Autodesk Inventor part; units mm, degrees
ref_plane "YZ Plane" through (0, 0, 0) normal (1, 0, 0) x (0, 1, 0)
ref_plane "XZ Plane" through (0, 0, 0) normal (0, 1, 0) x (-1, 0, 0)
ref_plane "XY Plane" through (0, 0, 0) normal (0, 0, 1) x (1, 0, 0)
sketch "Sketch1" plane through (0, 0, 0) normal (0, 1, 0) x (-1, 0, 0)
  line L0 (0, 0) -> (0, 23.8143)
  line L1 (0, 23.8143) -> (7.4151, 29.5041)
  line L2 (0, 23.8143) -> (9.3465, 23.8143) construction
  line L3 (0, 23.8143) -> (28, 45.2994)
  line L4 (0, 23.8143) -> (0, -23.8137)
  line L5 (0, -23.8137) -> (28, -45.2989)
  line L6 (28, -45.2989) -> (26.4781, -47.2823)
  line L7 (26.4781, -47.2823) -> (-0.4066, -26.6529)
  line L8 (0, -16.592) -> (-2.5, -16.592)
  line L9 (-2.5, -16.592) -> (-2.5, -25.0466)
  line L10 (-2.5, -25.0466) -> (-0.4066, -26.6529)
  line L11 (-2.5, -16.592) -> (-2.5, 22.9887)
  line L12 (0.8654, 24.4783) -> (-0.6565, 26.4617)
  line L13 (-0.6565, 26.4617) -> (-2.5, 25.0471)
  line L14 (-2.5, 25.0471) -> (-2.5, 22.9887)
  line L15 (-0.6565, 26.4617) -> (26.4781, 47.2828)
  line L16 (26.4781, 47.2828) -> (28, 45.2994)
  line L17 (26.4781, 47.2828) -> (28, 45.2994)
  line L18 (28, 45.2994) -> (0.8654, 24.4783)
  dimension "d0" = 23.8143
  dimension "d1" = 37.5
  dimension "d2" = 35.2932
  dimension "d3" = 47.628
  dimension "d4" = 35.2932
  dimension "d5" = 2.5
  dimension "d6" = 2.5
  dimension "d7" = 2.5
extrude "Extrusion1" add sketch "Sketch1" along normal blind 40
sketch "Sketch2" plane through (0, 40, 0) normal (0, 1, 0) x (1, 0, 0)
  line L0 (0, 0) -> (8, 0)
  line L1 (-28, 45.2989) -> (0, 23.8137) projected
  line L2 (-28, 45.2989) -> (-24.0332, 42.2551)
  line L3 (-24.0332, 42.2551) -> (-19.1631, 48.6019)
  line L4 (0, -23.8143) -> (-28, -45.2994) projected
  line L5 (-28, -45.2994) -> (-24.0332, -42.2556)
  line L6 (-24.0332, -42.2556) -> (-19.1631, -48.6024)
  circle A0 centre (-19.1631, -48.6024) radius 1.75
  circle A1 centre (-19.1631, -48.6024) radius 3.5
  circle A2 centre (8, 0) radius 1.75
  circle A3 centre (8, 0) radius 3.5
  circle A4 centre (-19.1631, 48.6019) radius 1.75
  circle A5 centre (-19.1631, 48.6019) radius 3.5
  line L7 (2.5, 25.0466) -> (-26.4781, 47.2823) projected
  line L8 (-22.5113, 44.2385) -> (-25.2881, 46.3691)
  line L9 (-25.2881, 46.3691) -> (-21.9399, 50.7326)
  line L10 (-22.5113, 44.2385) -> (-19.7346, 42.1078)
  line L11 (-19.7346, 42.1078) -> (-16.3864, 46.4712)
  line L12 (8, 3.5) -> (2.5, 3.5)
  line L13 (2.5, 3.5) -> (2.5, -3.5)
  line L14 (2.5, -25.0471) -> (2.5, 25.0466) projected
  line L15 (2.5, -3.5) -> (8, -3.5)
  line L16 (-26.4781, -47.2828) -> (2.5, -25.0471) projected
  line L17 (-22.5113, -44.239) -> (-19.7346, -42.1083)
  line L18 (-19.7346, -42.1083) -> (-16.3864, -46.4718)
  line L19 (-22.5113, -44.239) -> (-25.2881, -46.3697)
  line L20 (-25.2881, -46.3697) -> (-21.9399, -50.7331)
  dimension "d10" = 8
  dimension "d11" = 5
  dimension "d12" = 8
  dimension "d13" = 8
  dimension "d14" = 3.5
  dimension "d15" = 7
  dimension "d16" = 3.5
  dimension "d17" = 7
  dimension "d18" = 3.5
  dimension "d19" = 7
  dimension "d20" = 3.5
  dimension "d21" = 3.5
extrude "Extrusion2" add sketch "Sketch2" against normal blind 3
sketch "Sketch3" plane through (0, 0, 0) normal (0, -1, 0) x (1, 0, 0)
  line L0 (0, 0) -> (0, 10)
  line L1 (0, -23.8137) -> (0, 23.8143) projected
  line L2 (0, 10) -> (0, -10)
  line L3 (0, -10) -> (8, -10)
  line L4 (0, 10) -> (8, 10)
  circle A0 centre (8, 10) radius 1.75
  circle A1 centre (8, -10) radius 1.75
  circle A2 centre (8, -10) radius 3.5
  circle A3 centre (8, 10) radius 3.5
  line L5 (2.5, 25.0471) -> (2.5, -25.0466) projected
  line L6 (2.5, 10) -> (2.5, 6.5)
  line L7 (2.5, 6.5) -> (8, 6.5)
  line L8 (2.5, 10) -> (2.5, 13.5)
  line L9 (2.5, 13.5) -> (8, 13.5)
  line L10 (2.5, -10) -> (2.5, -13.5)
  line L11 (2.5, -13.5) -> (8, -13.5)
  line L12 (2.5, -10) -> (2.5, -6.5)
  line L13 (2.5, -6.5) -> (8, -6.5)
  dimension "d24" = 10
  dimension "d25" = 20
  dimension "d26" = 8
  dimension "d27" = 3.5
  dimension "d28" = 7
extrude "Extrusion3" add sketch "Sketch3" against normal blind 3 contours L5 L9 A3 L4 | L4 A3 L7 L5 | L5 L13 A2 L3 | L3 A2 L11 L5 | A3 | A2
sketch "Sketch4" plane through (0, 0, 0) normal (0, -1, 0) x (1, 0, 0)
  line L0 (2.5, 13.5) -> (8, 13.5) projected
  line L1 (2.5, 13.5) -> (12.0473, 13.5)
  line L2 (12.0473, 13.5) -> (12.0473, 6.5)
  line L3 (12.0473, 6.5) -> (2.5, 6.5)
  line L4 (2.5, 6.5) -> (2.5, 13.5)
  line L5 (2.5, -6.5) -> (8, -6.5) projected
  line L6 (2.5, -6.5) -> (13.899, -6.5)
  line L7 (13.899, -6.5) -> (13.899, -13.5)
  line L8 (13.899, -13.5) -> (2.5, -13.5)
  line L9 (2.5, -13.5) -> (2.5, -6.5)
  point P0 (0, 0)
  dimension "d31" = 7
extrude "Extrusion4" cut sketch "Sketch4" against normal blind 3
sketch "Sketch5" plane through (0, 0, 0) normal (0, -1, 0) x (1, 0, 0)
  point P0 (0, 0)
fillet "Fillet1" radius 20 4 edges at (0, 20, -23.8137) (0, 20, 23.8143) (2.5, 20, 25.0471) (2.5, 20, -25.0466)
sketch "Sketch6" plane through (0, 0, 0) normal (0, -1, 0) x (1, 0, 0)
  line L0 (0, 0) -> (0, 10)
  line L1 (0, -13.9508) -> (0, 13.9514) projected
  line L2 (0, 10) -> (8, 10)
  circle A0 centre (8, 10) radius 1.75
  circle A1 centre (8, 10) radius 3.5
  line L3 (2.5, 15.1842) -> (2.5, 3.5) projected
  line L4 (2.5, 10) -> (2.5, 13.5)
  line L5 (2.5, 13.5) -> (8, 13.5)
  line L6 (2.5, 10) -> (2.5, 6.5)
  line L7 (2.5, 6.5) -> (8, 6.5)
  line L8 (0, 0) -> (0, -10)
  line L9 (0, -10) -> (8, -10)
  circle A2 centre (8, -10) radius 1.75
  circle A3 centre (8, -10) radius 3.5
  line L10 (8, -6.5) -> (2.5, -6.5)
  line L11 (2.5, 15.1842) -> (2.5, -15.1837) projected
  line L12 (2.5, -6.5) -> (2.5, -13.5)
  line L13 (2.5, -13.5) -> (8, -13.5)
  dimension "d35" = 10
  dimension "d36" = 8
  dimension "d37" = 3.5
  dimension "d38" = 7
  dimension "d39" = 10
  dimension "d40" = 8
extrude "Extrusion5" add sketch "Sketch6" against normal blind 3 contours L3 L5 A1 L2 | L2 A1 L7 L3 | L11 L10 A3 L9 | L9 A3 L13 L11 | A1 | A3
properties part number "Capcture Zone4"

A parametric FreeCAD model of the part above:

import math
import FreeCAD as App
import Part
import Sketcher
from FreeCAD import Vector
Q = App.Units.Quantity


def edges_at(feature, points):
    """Names of the edges that pass closest to the given points."""
    edges = feature.Shape.Edges
    near = lambda p: min(range(len(edges)), key=lambda i: edges[i].distToShape(Part.Vertex(*p))[0])
    return sorted({f"Edge{near(p) + 1}" for p in points})

doc = App.newDocument("Part")
body = doc.addObject("PartDesign::Body", "Body")

# Sketch on XZ plane
sketch1 = body.newObject("Sketcher::SketchObject", "Sketch")
sketch1.AttachmentSupport = (doc.getObject("XZ_Plane"), [""])
sketch1.MapMode = "FlatFace"
sketch1.addGeometry(Part.LineSegment(Vector(0, 23.8, 0), Vector(-7.4, 29.5, 0)), False)
sketch1.addGeometry(Part.LineSegment(Vector(-7.4, 29.5, 0), Vector(-28, 45.3, 0)), False)
sketch1.addGeometry(Part.LineSegment(Vector(-28, 45.3, 0), Vector(-26.5, 47.3, 0)), False)
sketch1.addGeometry(Part.LineSegment(Vector(-26.5, 47.3, 0), Vector(0.7, 26.5, 0)), False)
sketch1.addGeometry(Part.LineSegment(Vector(0.7, 26.5, 0), Vector(2.5, 25, 0)), False)
sketch1.addGeometry(Part.LineSegment(Vector(2.5, 25, 0), Vector(2.5, -25, 0)), False)
sketch1.addGeometry(Part.LineSegment(Vector(2.5, -25, 0), Vector(0.4, -26.7, 0)), False)
sketch1.addGeometry(Part.LineSegment(Vector(0.4, -26.7, 0), Vector(-26.5, -47.3, 0)), False)
sketch1.addGeometry(Part.LineSegment(Vector(-26.5, -47.3, 0), Vector(-28, -45.3, 0)), False)
sketch1.addGeometry(Part.LineSegment(Vector(-28, -45.3, 0), Vector(0, -23.8, 0)), False)
sketch1.addGeometry(Part.LineSegment(Vector(0, -23.8, 0), Vector(0, 23.8, 0)), False)
sketch1.addConstraint(Sketcher.Constraint("Coincident", 0, 2, 1, 1))
sketch1.addConstraint(Sketcher.Constraint("Coincident", 1, 2, 2, 1))
sketch1.addConstraint(Sketcher.Constraint("Coincident", 2, 2, 3, 1))
sketch1.addConstraint(Sketcher.Constraint("Coincident", 3, 2, 4, 1))
sketch1.addConstraint(Sketcher.Constraint("Coincident", 4, 2, 5, 1))
sketch1.addConstraint(Sketcher.Constraint("Coincident", 5, 2, 6, 1))
sketch1.addConstraint(Sketcher.Constraint("Coincident", 6, 2, 7, 1))
sketch1.addConstraint(Sketcher.Constraint("Coincident", 7, 2, 8, 1))
sketch1.addConstraint(Sketcher.Constraint("Coincident", 8, 2, 9, 1))
sketch1.addConstraint(Sketcher.Constraint("Coincident", 9, 2, 10, 1))
sketch1.addConstraint(Sketcher.Constraint("Coincident", 10, 2, 0, 1))
sketch1.addConstraint(Sketcher.Constraint("Vertical", 5))
sketch1.addConstraint(Sketcher.Constraint("Vertical", 10))
sketch1.addConstraint(Sketcher.Constraint("PointOnObject", 9, 2, -2))
sketch1.addConstraint(Sketcher.Constraint("Parallel", 0, 1))
sketch1.addConstraint(Sketcher.Constraint("Perpendicular", 1, 2))
sketch1.addConstraint(Sketcher.Constraint("Perpendicular", 2, 3))
sketch1.addConstraint(Sketcher.Constraint("Parallel", 3, 4))
sketch1.addConstraint(Sketcher.Constraint("Parallel", 6, 7))
sketch1.addConstraint(Sketcher.Constraint("Perpendicular", 7, 8))
sketch1.addConstraint(Sketcher.Constraint("Perpendicular", 8, 9))
sketch1.addConstraint(Sketcher.Constraint("Vertical", 2, 2, 7, 2))
sketch1.addConstraint(Sketcher.Constraint("Vertical", 1, 2, 8, 2))
sketch1.addConstraint(Sketcher.Constraint("Equal", 2, 8))
sketch1.addConstraint(Sketcher.Constraint("Angle", 3, Q("-37.5 deg")))
sketch1.addConstraint(Sketcher.Constraint("Distance", 2, Q("2.5 mm")))
sketch1.addConstraint(Sketcher.Constraint("DistanceX", -1, 1, 4, 2, Q("2.5 mm")))
sketch1.addConstraint(Sketcher.Constraint("DistanceY", 10, 1, 10, 2, Q("47.628 mm")))
sketch1.addConstraint(Sketcher.Constraint("DistanceX", 1, 2, -1, 1, Q("28 mm")))
sketch1.addConstraint(Sketcher.Constraint("DistanceY", 9, 2, -1, 1, Q("23.8137 mm")))
sketch1.addConstraint(Sketcher.Constraint("DistanceY", 6, 2, 4, 2, Q("51.7 mm")))
sketch1.addConstraint(Sketcher.Constraint("DistanceX", 6, 2, 3, 2, Q("0.25 mm")))
sketch1.addConstraint(Sketcher.Constraint("DistanceX", 0, 2, -1, 1, Q("7.415 mm")))
pad1 = body.newObject("PartDesign::Pad", "Pad")
pad1.Profile = sketch1
pad1.Length = 40
pad1.Reversed = True

# Sketch on XZ plane
sketch2 = body.newObject("Sketcher::SketchObject", "Sketch001")
sketch2.AttachmentSupport = (doc.getObject("XZ_Plane"), [""])
sketch2.MapMode = "FlatFace"
sketch2.AttachmentOffset = App.Placement(Vector(0, 0, -40), App.Rotation())
sketch2.addGeometry(Part.LineSegment(Vector(2.5, -3.5, 0), Vector(2.5, 3.5, 0)), False)
sketch2.addGeometry(Part.LineSegment(Vector(2.5, 3.5, 0), Vector(8, 3.5, 0)), False)
sketch2.addGeometry(Part.ArcOfCircle(Part.Circle(Vector(8, 0, 0), Vector(0, 0, 1), 3.5), math.radians(-90), math.radians(90)), False)
sketch2.addGeometry(Part.LineSegment(Vector(8, -3.5, 0), Vector(2.5, -3.5, 0)), False)
sketch2.addGeometry(Part.Circle(Vector(8, 0, 0), Vector(0, 0, 1), 1.8), False)
sketch2.addGeometry(Part.LineSegment(Vector(-19.7, -42.1, 0), Vector(-16.4, -46.5, 0)), False)
sketch2.addGeometry(Part.ArcOfCircle(Part.Circle(Vector(-19.2, -48.6, 0), Vector(0, 0, 1), 3.5), math.radians(-143), math.radians(38)), False)
sketch2.addGeometry(Part.LineSegment(Vector(-21.9, -50.7, 0), Vector(-25.3, -46.4, 0)), False)
sketch2.addGeometry(Part.LineSegment(Vector(-25.3, -46.4, 0), Vector(-19.7, -42.1, 0)), False)
sketch2.addGeometry(Part.Circle(Vector(-19.2, -48.6, 0), Vector(0, 0, 1), 1.8), False)
sketch2.addGeometry(Part.LineSegment(Vector(-16.4, 46.5, 0), Vector(-19.7, 42.1, 0)), False)
sketch2.addGeometry(Part.LineSegment(Vector(-19.7, 42.1, 0), Vector(-25.3, 46.4, 0)), False)
sketch2.addGeometry(Part.LineSegment(Vector(-25.3, 46.4, 0), Vector(-21.9, 50.7, 0)), False)
sketch2.addGeometry(Part.ArcOfCircle(Part.Circle(Vector(-19.2, 48.6, 0), Vector(0, 0, 1), 3.5), math.radians(-37), math.radians(143)), False)
sketch2.addGeometry(Part.Circle(Vector(-19.2, 48.6, 0), Vector(0, 0, 1), 1.8), False)
sketch2.addConstraint(Sketcher.Constraint("Coincident", 0, 2, 1, 1))
sketch2.addConstraint(Sketcher.Constraint("Tangent", 1, 2, 2, 2))
sketch2.addConstraint(Sketcher.Constraint("Tangent", 2, 1, 3, 1))
sketch2.addConstraint(Sketcher.Constraint("Coincident", 3, 2, 0, 1))
sketch2.addConstraint(Sketcher.Constraint("Tangent", 5, 2, 6, 2))
sketch2.addConstraint(Sketcher.Constraint("Tangent", 6, 1, 7, 1))
sketch2.addConstraint(Sketcher.Constraint("Coincident", 7, 2, 8, 1))
sketch2.addConstraint(Sketcher.Constraint("Coincident", 8, 2, 5, 1))
sketch2.addConstraint(Sketcher.Constraint("Coincident", 10, 2, 11, 1))
sketch2.addConstraint(Sketcher.Constraint("Coincident", 11, 2, 12, 1))
sketch2.addConstraint(Sketcher.Constraint("Tangent", 12, 2, 13, 2))
sketch2.addConstraint(Sketcher.Constraint("Tangent", 13, 1, 10, 1))
sketch2.addConstraint(Sketcher.Constraint("Vertical", 0))
sketch2.addConstraint(Sketcher.Constraint("Horizontal", 1))
sketch2.addConstraint(Sketcher.Constraint("Horizontal", 3))
sketch2.addConstraint(Sketcher.Constraint("Coincident", 4, 3, 2, 3))
sketch2.addConstraint(Sketcher.Constraint("Coincident", 9, 3, 6, 3))
sketch2.addConstraint(Sketcher.Constraint("Coincident", 14, 3, 13, 3))
sketch2.addConstraint(Sketcher.Constraint("Equal", 2, 6))
sketch2.addConstraint(Sketcher.Constraint("Equal", 4, 9))
sketch2.addConstraint(Sketcher.Constraint("Equal", 6, 13))
sketch2.addConstraint(Sketcher.Constraint("Equal", 9, 14))
sketch2.addConstraint(Sketcher.Constraint("PointOnObject", 2, 3, -1))
sketch2.addConstraint(Sketcher.Constraint("Parallel", 5, 7))
sketch2.addConstraint(Sketcher.Constraint("Perpendicular", 7, 8))
sketch2.addConstraint(Sketcher.Constraint("Perpendicular", 10, 11))
sketch2.addConstraint(Sketcher.Constraint("Perpendicular", 11, 12))
sketch2.addConstraint(Sketcher.Constraint("Vertical", 9, 3, 13, 3))
sketch2.addConstraint(Sketcher.Constraint("Vertical", 8, 2, 10, 2))
sketch2.addConstraint(Sketcher.Constraint("Vertical", 7, 2, 11, 2))
sketch2.addConstraint(Sketcher.Constraint("Diameter", 4, Q("3.5 mm")))
sketch2.addConstraint(Sketcher.Constraint("Radius", 2, Q("3.5 mm")))
sketch2.addConstraint(Sketcher.Constraint("DistanceX", -1, 1, 2, 3, Q("8 mm")))
sketch2.addConstraint(Sketcher.Constraint("DistanceX", 1, 1, 1, 2, Q("5.5 mm")))
sketch2.addConstraint(Sketcher.Constraint("Angle", 5, Q("-52.4996 deg")))
sketch2.addConstraint(Sketcher.Constraint("Distance", 5, Q("5.5 mm")))
sketch2.addConstraint(Sketcher.Constraint("DistanceX", 12, 2, -1, 1, Q("21.94 mm")))
sketch2.addConstraint(Sketcher.Constraint("DistanceY", 6, 3, -1, 1, Q("48.602 mm")))
sketch2.addConstraint(Sketcher.Constraint("DistanceY", -1, 1, 12, 2, Q("50.733 mm")))
pad2 = body.newObject("PartDesign::Pad", "Pad001")
pad2.Profile = sketch2
pad2.Length = 3

# Sketch on XZ plane
sketch3 = body.newObject("Sketcher::SketchObject", "Sketch002")
sketch3.AttachmentSupport = (doc.getObject("XZ_Plane"), [""])
sketch3.MapMode = "FlatFace"
sketch3.addGeometry(Part.LineSegment(Vector(2.5, 13.5, 0), Vector(2.5, 6.5, 0)), False)
sketch3.addGeometry(Part.LineSegment(Vector(2.5, 6.5, 0), Vector(8, 6.5, 0)), False)
sketch3.addGeometry(Part.ArcOfCircle(Part.Circle(Vector(8, 10, 0), Vector(0, 0, 1), 3.5), math.radians(-90), math.radians(90)), False)
sketch3.addGeometry(Part.LineSegment(Vector(8, 13.5, 0), Vector(2.5, 13.5, 0)), False)
sketch3.addGeometry(Part.Circle(Vector(8, 10, 0), Vector(0, 0, 1), 1.8), False)
sketch3.addGeometry(Part.LineSegment(Vector(2.5, -6.5, 0), Vector(2.5, -13.5, 0)), False)
sketch3.addGeometry(Part.LineSegment(Vector(2.5, -13.5, 0), Vector(8, -13.5, 0)), False)
sketch3.addGeometry(Part.ArcOfCircle(Part.Circle(Vector(8, -10, 0), Vector(0, 0, 1), 3.5), math.radians(-90), math.radians(90)), False)
sketch3.addGeometry(Part.LineSegment(Vector(8, -6.5, 0), Vector(2.5, -6.5, 0)), False)
sketch3.addGeometry(Part.Circle(Vector(8, -10, 0), Vector(0, 0, 1), 1.8), False)
sketch3.addConstraint(Sketcher.Constraint("Coincident", 0, 2, 1, 1))
sketch3.addConstraint(Sketcher.Constraint("Tangent", 1, 2, 2, 1))
sketch3.addConstraint(Sketcher.Constraint("Tangent", 2, 2, 3, 1))
sketch3.addConstraint(Sketcher.Constraint("Coincident", 3, 2, 0, 1))
sketch3.addConstraint(Sketcher.Constraint("Coincident", 5, 2, 6, 1))
sketch3.addConstraint(Sketcher.Constraint("Tangent", 6, 2, 7, 1))
sketch3.addConstraint(Sketcher.Constraint("Tangent", 7, 2, 8, 1))
sketch3.addConstraint(Sketcher.Constraint("Coincident", 8, 2, 5, 1))
sketch3.addConstraint(Sketcher.Constraint("Vertical", 0))
sketch3.addConstraint(Sketcher.Constraint("Horizontal", 1))
sketch3.addConstraint(Sketcher.Constraint("Horizontal", 3))
sketch3.addConstraint(Sketcher.Constraint("Vertical", 5))
sketch3.addConstraint(Sketcher.Constraint("Horizontal", 6))
sketch3.addConstraint(Sketcher.Constraint("Horizontal", 8))
sketch3.addConstraint(Sketcher.Constraint("Coincident", 4, 3, 2, 3))
sketch3.addConstraint(Sketcher.Constraint("Coincident", 9, 3, 7, 3))
sketch3.addConstraint(Sketcher.Constraint("Equal", 2, 7))
sketch3.addConstraint(Sketcher.Constraint("Equal", 4, 9))
sketch3.addConstraint(Sketcher.Constraint("Symmetric", 2, 3, 7, 3, -1))
sketch3.addConstraint(Sketcher.Constraint("Vertical", 3, 2, 5, 2))
sketch3.addConstraint(Sketcher.Constraint("Diameter", 4, Q("3.5 mm")))
sketch3.addConstraint(Sketcher.Constraint("Radius", 2, Q("3.5 mm")))
sketch3.addConstraint(Sketcher.Constraint("DistanceX", -1, 1, 2, 3, Q("8 mm")))
sketch3.addConstraint(Sketcher.Constraint("DistanceY", -1, 1, 2, 3, Q("10 mm")))
sketch3.addConstraint(Sketcher.Constraint("DistanceX", 1, 1, 1, 2, Q("5.5 mm")))
pad3 = body.newObject("PartDesign::Pad", "Pad002")
pad3.Profile = sketch3
pad3.Length = 3
pad3.Reversed = True

# Sketch on XZ plane
sketch4 = body.newObject("Sketcher::SketchObject", "Sketch003")
sketch4.AttachmentSupport = (doc.getObject("XZ_Plane"), [""])
sketch4.MapMode = "FlatFace"
sketch4.addGeometry(Part.LineSegment(Vector(12, 14, 0), Vector(2, 14, 0)), False)
sketch4.addGeometry(Part.LineSegment(Vector(2, 14, 0), Vector(2, 6, 0)), False)
sketch4.addGeometry(Part.LineSegment(Vector(2, 6, 0), Vector(12, 6, 0)), False)
sketch4.addGeometry(Part.LineSegment(Vector(12, 6, 0), Vector(12, 14, 0)), False)
sketch4.addGeometry(Part.LineSegment(Vector(14, -6, 0), Vector(2, -6, 0)), False)
sketch4.addGeometry(Part.LineSegment(Vector(2, -6, 0), Vector(2, -14, 0)), False)
sketch4.addGeometry(Part.LineSegment(Vector(2, -14, 0), Vector(14, -14, 0)), False)
sketch4.addGeometry(Part.LineSegment(Vector(14, -14, 0), Vector(14, -6, 0)), False)
sketch4.addConstraint(Sketcher.Constraint("Coincident", 0, 2, 1, 1))
sketch4.addConstraint(Sketcher.Constraint("Coincident", 1, 2, 2, 1))
sketch4.addConstraint(Sketcher.Constraint("Coincident", 2, 2, 3, 1))
sketch4.addConstraint(Sketcher.Constraint("Coincident", 3, 2, 0, 1))
sketch4.addConstraint(Sketcher.Constraint("Coincident", 4, 2, 5, 1))
sketch4.addConstraint(Sketcher.Constraint("Coincident", 5, 2, 6, 1))
sketch4.addConstraint(Sketcher.Constraint("Coincident", 6, 2, 7, 1))
sketch4.addConstraint(Sketcher.Constraint("Coincident", 7, 2, 4, 1))
sketch4.addConstraint(Sketcher.Constraint("Horizontal", 0))
sketch4.addConstraint(Sketcher.Constraint("Vertical", 1))
sketch4.addConstraint(Sketcher.Constraint("Horizontal", 2))
sketch4.addConstraint(Sketcher.Constraint("Vertical", 3))
sketch4.addConstraint(Sketcher.Constraint("Horizontal", 4))
sketch4.addConstraint(Sketcher.Constraint("Vertical", 5))
sketch4.addConstraint(Sketcher.Constraint("Horizontal", 6))
sketch4.addConstraint(Sketcher.Constraint("Vertical", 7))
sketch4.addConstraint(Sketcher.Constraint("Symmetric", 1, 2, 4, 2, -1))
sketch4.addConstraint(Sketcher.Constraint("Equal", 3, 5))
sketch4.addConstraint(Sketcher.Constraint("DistanceY", 1, 2, 1, 1, Q("7 mm")))
sketch4.addConstraint(Sketcher.Constraint("DistanceY", 4, 2, 1, 2, Q("13 mm")))
sketch4.addConstraint(Sketcher.Constraint("DistanceX", -1, 1, 0, 2, Q("2.5 mm")))
sketch4.addConstraint(Sketcher.Constraint("DistanceX", 4, 2, 4, 1, Q("11.399 mm")))
sketch4.addConstraint(Sketcher.Constraint("DistanceX", 0, 2, 0, 1, Q("9.5473 mm")))
pocket1 = body.newObject("PartDesign::Pocket", "Pocket")
pocket1.Profile = sketch4
pocket1.Length = 3
doc.recompute()

fillet = body.newObject("PartDesign::Fillet", "Fillet")
fillet.Base = (pocket1, edges_at(pocket1, [
    (0, 20, -23.814),
    (0, 20, 23.814),
    (2.5, 20, 25.047),
    (2.5, 20, -25.047),
]))
fillet.Radius = 20

# Sketch on XZ plane
sketch5 = body.newObject("Sketcher::SketchObject", "Sketch004")
sketch5.AttachmentSupport = (doc.getObject("XZ_Plane"), [""])
sketch5.MapMode = "FlatFace"
sketch5.addGeometry(Part.LineSegment(Vector(2.5, 13.5, 0), Vector(2.5, 6.5, 0)), False)
sketch5.addGeometry(Part.LineSegment(Vector(2.5, 6.5, 0), Vector(8, 6.5, 0)), False)
sketch5.addGeometry(Part.ArcOfCircle(Part.Circle(Vector(8, 10, 0), Vector(0, 0, 1), 3.5), math.radians(-90), math.radians(90)), False)
sketch5.addGeometry(Part.LineSegment(Vector(8, 13.5, 0), Vector(2.5, 13.5, 0)), False)
sketch5.addGeometry(Part.Circle(Vector(8, 10, 0), Vector(0, 0, 1), 1.8), False)
sketch5.addGeometry(Part.LineSegment(Vector(2.5, -6.5, 0), Vector(2.5, -13.5, 0)), False)
sketch5.addGeometry(Part.LineSegment(Vector(2.5, -13.5, 0), Vector(8, -13.5, 0)), False)
sketch5.addGeometry(Part.ArcOfCircle(Part.Circle(Vector(8, -10, 0), Vector(0, 0, 1), 3.5), math.radians(-90), math.radians(90)), False)
sketch5.addGeometry(Part.LineSegment(Vector(8, -6.5, 0), Vector(2.5, -6.5, 0)), False)
sketch5.addGeometry(Part.Circle(Vector(8, -10, 0), Vector(0, 0, 1), 1.8), False)
sketch5.addConstraint(Sketcher.Constraint("Coincident", 0, 2, 1, 1))
sketch5.addConstraint(Sketcher.Constraint("Tangent", 1, 2, 2, 1))
sketch5.addConstraint(Sketcher.Constraint("Tangent", 2, 2, 3, 1))
sketch5.addConstraint(Sketcher.Constraint("Coincident", 3, 2, 0, 1))
sketch5.addConstraint(Sketcher.Constraint("Coincident", 5, 2, 6, 1))
sketch5.addConstraint(Sketcher.Constraint("Tangent", 6, 2, 7, 1))
sketch5.addConstraint(Sketcher.Constraint("Tangent", 7, 2, 8, 1))
sketch5.addConstraint(Sketcher.Constraint("Coincident", 8, 2, 5, 1))
sketch5.addConstraint(Sketcher.Constraint("Vertical", 0))
sketch5.addConstraint(Sketcher.Constraint("Horizontal", 1))
sketch5.addConstraint(Sketcher.Constraint("Horizontal", 3))
sketch5.addConstraint(Sketcher.Constraint("Vertical", 5))
sketch5.addConstraint(Sketcher.Constraint("Horizontal", 6))
sketch5.addConstraint(Sketcher.Constraint("Horizontal", 8))
sketch5.addConstraint(Sketcher.Constraint("Coincident", 4, 3, 2, 3))
sketch5.addConstraint(Sketcher.Constraint("Coincident", 9, 3, 7, 3))
sketch5.addConstraint(Sketcher.Constraint("Equal", 2, 7))
sketch5.addConstraint(Sketcher.Constraint("Equal", 4, 9))
sketch5.addConstraint(Sketcher.Constraint("Symmetric", 2, 3, 7, 3, -1))
sketch5.addConstraint(Sketcher.Constraint("Vertical", 3, 2, 5, 2))
sketch5.addConstraint(Sketcher.Constraint("Diameter", 4, Q("3.5 mm")))
sketch5.addConstraint(Sketcher.Constraint("Radius", 2, Q("3.5 mm")))
sketch5.addConstraint(Sketcher.Constraint("DistanceX", -1, 1, 2, 3, Q("8 mm")))
sketch5.addConstraint(Sketcher.Constraint("DistanceY", -1, 1, 2, 3, Q("10 mm")))
sketch5.addConstraint(Sketcher.Constraint("DistanceX", 1, 1, 1, 2, Q("5.5 mm")))
pad4 = body.newObject("PartDesign::Pad", "Pad003")
pad4.Profile = sketch5
pad4.Length = 3
pad4.Reversed = True

doc.recompute()
